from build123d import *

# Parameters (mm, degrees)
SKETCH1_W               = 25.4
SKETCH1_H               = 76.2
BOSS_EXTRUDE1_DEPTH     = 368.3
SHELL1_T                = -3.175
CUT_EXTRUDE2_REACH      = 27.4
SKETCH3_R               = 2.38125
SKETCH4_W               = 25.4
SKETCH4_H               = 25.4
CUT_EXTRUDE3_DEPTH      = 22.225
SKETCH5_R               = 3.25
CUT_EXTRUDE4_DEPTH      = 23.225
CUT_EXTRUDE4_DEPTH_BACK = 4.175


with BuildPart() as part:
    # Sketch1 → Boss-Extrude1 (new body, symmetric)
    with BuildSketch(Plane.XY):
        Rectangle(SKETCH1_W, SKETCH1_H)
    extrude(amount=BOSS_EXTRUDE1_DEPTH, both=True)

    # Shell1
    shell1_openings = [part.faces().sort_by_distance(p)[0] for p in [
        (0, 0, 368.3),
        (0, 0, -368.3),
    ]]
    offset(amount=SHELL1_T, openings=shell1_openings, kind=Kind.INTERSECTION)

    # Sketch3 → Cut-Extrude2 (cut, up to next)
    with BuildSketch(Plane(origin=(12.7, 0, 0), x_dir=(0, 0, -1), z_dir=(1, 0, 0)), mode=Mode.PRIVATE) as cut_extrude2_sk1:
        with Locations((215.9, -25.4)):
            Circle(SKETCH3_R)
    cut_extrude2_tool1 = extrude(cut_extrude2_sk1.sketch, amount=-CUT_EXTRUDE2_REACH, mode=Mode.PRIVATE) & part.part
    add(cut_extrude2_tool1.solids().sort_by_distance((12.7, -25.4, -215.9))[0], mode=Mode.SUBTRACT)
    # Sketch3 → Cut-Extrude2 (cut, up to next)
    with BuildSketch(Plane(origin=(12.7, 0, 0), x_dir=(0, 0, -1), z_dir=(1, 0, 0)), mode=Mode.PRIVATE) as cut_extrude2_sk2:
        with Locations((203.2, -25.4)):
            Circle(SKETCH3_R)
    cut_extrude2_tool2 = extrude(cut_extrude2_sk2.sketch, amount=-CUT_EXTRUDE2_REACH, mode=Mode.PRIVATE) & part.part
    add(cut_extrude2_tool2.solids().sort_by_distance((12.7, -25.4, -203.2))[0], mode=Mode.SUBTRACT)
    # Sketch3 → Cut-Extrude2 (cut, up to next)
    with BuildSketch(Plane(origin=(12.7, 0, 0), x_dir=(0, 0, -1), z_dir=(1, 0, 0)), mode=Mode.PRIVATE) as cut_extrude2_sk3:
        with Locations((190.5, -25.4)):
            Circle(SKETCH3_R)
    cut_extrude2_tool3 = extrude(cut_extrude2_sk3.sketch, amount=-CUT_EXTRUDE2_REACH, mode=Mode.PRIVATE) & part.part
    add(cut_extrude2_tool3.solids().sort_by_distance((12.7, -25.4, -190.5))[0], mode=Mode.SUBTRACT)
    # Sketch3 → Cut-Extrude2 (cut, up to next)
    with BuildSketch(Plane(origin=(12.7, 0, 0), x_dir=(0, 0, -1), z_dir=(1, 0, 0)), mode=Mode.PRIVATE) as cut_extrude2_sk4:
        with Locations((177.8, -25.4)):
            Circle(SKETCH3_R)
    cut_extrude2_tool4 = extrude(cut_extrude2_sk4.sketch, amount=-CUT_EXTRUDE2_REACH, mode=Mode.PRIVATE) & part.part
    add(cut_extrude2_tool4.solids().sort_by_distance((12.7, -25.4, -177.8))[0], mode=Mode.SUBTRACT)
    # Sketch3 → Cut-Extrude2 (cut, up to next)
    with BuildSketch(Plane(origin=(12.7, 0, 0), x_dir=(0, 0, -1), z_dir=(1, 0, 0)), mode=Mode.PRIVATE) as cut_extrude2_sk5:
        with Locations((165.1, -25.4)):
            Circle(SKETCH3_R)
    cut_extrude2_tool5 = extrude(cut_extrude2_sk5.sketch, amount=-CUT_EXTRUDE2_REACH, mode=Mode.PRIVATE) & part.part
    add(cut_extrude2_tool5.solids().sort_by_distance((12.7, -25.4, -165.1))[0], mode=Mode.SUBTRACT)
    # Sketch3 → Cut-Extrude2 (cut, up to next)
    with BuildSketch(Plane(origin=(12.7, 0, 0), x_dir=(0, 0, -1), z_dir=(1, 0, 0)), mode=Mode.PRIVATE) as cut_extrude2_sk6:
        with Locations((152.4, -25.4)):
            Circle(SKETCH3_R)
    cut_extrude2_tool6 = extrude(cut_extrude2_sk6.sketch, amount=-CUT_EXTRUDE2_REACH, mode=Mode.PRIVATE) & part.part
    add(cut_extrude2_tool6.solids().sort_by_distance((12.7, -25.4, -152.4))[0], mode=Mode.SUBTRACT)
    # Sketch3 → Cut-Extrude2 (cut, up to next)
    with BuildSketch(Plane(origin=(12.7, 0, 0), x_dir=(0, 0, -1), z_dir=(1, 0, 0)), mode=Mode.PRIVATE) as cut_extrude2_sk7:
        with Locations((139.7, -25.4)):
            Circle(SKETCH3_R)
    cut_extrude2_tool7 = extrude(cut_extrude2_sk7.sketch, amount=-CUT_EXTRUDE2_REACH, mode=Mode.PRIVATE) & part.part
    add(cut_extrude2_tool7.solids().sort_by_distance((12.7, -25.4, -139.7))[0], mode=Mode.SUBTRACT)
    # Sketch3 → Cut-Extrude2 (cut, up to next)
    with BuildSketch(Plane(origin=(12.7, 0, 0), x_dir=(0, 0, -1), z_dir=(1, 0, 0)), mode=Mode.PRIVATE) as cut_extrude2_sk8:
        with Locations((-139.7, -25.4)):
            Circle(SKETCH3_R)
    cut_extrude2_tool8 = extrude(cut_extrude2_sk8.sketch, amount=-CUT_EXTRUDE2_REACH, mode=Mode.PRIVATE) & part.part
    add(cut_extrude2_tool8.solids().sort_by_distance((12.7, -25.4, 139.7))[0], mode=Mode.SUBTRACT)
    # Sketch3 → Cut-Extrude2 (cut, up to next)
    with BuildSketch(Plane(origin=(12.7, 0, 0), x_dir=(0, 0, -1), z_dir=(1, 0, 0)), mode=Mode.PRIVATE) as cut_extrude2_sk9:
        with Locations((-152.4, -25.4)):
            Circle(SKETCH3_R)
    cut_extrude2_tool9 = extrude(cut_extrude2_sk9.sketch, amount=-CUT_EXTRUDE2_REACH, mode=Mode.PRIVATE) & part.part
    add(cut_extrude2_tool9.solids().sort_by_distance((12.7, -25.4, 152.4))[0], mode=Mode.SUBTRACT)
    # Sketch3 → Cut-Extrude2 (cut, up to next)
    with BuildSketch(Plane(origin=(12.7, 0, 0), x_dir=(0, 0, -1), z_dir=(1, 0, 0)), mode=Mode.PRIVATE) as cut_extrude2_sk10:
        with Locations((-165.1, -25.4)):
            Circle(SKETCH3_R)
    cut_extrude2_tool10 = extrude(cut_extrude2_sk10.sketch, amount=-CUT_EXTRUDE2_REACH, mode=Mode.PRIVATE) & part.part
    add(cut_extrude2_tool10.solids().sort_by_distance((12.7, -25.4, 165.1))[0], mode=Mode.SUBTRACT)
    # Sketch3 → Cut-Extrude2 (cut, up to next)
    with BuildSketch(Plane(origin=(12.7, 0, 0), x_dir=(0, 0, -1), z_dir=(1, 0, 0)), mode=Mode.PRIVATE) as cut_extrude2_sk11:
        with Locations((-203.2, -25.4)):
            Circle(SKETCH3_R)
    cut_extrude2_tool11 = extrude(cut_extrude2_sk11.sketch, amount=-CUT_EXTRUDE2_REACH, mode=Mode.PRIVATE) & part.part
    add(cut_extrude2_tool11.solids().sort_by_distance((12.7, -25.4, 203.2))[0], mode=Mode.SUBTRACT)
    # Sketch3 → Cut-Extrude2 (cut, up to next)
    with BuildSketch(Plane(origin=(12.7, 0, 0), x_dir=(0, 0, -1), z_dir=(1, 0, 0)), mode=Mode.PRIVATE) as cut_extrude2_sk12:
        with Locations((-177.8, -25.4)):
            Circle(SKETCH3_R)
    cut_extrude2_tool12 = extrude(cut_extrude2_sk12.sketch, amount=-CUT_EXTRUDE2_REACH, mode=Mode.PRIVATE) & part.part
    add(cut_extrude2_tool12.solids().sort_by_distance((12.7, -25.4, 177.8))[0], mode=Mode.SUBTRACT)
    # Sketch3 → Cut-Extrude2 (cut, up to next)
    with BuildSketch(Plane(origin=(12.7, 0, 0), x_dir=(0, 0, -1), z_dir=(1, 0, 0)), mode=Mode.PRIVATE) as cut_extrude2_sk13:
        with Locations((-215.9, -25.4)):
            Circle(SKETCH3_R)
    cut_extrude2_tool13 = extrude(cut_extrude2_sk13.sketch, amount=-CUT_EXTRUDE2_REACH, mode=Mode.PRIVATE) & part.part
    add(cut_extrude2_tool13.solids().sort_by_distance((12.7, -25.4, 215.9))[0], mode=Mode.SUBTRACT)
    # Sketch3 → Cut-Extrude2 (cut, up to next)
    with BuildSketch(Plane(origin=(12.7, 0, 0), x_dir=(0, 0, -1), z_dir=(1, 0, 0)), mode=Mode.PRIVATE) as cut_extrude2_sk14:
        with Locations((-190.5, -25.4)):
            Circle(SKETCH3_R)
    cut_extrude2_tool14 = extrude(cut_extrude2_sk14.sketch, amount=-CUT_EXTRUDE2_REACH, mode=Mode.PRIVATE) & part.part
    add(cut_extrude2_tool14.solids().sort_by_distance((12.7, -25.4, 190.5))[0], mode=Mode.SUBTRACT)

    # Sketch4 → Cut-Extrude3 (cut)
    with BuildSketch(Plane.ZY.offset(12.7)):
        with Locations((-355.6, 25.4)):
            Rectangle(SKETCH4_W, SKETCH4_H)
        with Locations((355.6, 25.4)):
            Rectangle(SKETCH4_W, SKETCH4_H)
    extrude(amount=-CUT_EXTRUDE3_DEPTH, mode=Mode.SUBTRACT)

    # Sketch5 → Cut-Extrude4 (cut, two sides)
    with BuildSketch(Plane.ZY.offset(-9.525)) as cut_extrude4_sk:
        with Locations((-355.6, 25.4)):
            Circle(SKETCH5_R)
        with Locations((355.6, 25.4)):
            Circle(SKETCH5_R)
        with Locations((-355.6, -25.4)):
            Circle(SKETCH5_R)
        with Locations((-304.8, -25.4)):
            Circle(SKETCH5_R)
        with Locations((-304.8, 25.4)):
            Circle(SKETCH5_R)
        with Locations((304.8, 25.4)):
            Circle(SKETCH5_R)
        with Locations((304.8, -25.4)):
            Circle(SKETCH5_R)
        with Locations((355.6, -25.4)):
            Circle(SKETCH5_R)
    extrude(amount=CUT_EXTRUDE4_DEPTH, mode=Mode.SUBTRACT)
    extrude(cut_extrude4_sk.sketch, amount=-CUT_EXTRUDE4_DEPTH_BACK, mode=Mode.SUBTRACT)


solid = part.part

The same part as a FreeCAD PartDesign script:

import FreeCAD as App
import Part
import Sketcher
Q = App.Units.Quantity


def faces_at(feature, points):
    """Names of the faces that lie closest to the given points."""
    faces = feature.Shape.Faces
    near = lambda p: min(range(len(faces)), key=lambda i: faces[i].distToShape(Part.Vertex(*p))[0])
    return sorted({f"Face{near(p) + 1}" for p in points})

doc = App.newDocument("Part")
body = doc.addObject("PartDesign::Body", "Body")

# Sketch on XY plane
sketch1 = body.newObject("Sketcher::SketchObject", "Sketch")
sketch1.AttachmentSupport = (doc.getObject("XY_Plane"), [""])
sketch1.MapMode = "FlatFace"
sketch1.addGeometry([
    Part.LineSegment(App.Vector(-12.7, 38.1, 0), App.Vector(-12.7, -38.1, 0)),
    Part.LineSegment(App.Vector(-12.7, -38.1, 0), App.Vector(12.7, -38.1, 0)),
    Part.LineSegment(App.Vector(12.7, -38.1, 0), App.Vector(12.7, 38.1, 0)),
    Part.LineSegment(App.Vector(12.7, 38.1, 0), App.Vector(-12.7, 38.1, 0)),
], False)
sketch1.addConstraint([
    Sketcher.Constraint("Coincident", 0, 2, 1, 1),
    Sketcher.Constraint("Coincident", 1, 2, 2, 1),
    Sketcher.Constraint("Coincident", 2, 2, 3, 1),
    Sketcher.Constraint("Coincident", 3, 2, 0, 1),
    Sketcher.Constraint("Vertical", 0),
    Sketcher.Constraint("Horizontal", 1),
    Sketcher.Constraint("Vertical", 2),
    Sketcher.Constraint("Horizontal", 3),
    Sketcher.Constraint("Symmetric", 0, 2, 2, 2, -1, 1),
    Sketcher.Constraint("DistanceX", 1, 1, 1, 2, Q("1 in")),
    Sketcher.Constraint("DistanceY", 0, 2, 0, 1, Q("3 in")),
])
pad1 = body.newObject("PartDesign::Pad", "Pad")
pad1.Profile = sketch1
pad1.Length = Q("29 in")
pad1.Midplane = True
doc.recompute()

thickness = body.newObject("PartDesign::Thickness", "Thickness")
thickness.Base = (pad1, faces_at(pad1, [(0, 0, 368.3), (0, 0, -368.3)]))
thickness.Value = Q("0.125 in")
thickness.Reversed = True
thickness.Join = "Intersection"

# Sketch on YZ plane
sketch2 = body.newObject("Sketcher::SketchObject", "Sketch001")
sketch2.AttachmentSupport = (doc.getObject("YZ_Plane"), [""])
sketch2.MapMode = "FlatFace"
sketch2.AttachmentOffset = App.Placement(App.Vector(0, 0, 0.5 * 25.4), App.Rotation())
sketch2.addGeometry(Part.Circle(App.Vector(-25.4, -215.9, 0), App.Vector(0, 0, 1), 2.38125), False)
sketch2.addConstraint([
    Sketcher.Constraint("Diameter", 0, Q("0.1875 in")),
    Sketcher.Constraint("DistanceX", 0, 3, -1, 1, Q("1 in")),
    Sketcher.Constraint("DistanceY", 0, 3, -1, 1, Q("8.5 in")),
])
pocket1 = body.newObject("PartDesign::Pocket", "Pocket")
pocket1.Profile = sketch2
pocket1.Type = "UpToFirst"

# Sketch on YZ plane
sketch3 = body.newObject("Sketcher::SketchObject", "Sketch002")
sketch3.AttachmentSupport = (doc.getObject("YZ_Plane"), [""])
sketch3.MapMode = "FlatFace"
sketch3.AttachmentOffset = App.Placement(App.Vector(0, 0, 0.5 * 25.4), App.Rotation())
sketch3.addGeometry(Part.Circle(App.Vector(-25.4, -203.2, 0), App.Vector(0, 0, 1), 2.38125), False)
sketch3.addConstraint([
    Sketcher.Constraint("Diameter", 0, Q("0.1875 in")),
    Sketcher.Constraint("DistanceX", 0, 3, -1, 1, Q("1 in")),
    Sketcher.Constraint("DistanceY", 0, 3, -1, 1, Q("8 in")),
])
pocket2 = body.newObject("PartDesign::Pocket", "Pocket001")
pocket2.Profile = sketch3
pocket2.Type = "UpToFirst"

# Sketch on YZ plane
sketch4 = body.newObject("Sketcher::SketchObject", "Sketch003")
sketch4.AttachmentSupport = (doc.getObject("YZ_Plane"), [""])
sketch4.MapMode = "FlatFace"
sketch4.AttachmentOffset = App.Placement(App.Vector(0, 0, 0.5 * 25.4), App.Rotation())
sketch4.addGeometry(Part.Circle(App.Vector(-25.4, -190.5, 0), App.Vector(0, 0, 1), 2.38125), False)
sketch4.addConstraint([
    Sketcher.Constraint("Diameter", 0, Q("0.1875 in")),
    Sketcher.Constraint("DistanceX", 0, 3, -1, 1, Q("1 in")),
    Sketcher.Constraint("DistanceY", 0, 3, -1, 1, Q("7.5 in")),
])
pocket3 = body.newObject("PartDesign::Pocket", "Pocket002")
pocket3.Profile = sketch4
pocket3.Type = "UpToFirst"

# Sketch on YZ plane
sketch5 = body.newObject("Sketcher::SketchObject", "Sketch004")
sketch5.AttachmentSupport = (doc.getObject("YZ_Plane"), [""])
sketch5.MapMode = "FlatFace"
sketch5.AttachmentOffset = App.Placement(App.Vector(0, 0, 0.5 * 25.4), App.Rotation())
sketch5.addGeometry(Part.Circle(App.Vector(-25.4, -177.8, 0), App.Vector(0, 0, 1), 2.38125), False)
sketch5.addConstraint([
    Sketcher.Constraint("Diameter", 0, Q("0.1875 in")),
    Sketcher.Constraint("DistanceX", 0, 3, -1, 1, Q("1 in")),
    Sketcher.Constraint("DistanceY", 0, 3, -1, 1, Q("7 in")),
])
pocket4 = body.newObject("PartDesign::Pocket", "Pocket003")
pocket4.Profile = sketch5
pocket4.Type = "UpToFirst"

# Sketch on YZ plane
sketch6 = body.newObject("Sketcher::SketchObject", "Sketch005")
sketch6.AttachmentSupport = (doc.getObject("YZ_Plane"), [""])
sketch6.MapMode = "FlatFace"
sketch6.AttachmentOffset = App.Placement(App.Vector(0, 0, 0.5 * 25.4), App.Rotation())
sketch6.addGeometry(Part.Circle(App.Vector(-25.4, -165.1, 0), App.Vector(0, 0, 1), 2.38125), False)
sketch6.addConstraint([
    Sketcher.Constraint("Diameter", 0, Q("0.1875 in")),
    Sketcher.Constraint("DistanceX", 0, 3, -1, 1, Q("1 in")),
    Sketcher.Constraint("DistanceY", 0, 3, -1, 1, Q("6.5 in")),
])
pocket5 = body.newObject("PartDesign::Pocket", "Pocket004")
pocket5.Profile = sketch6
pocket5.Type = "UpToFirst"

# Sketch on YZ plane
sketch7 = body.newObject("Sketcher::SketchObject", "Sketch006")
sketch7.AttachmentSupport = (doc.getObject("YZ_Plane"), [""])
sketch7.MapMode = "FlatFace"
sketch7.AttachmentOffset = App.Placement(App.Vector(0, 0, 0.5 * 25.4), App.Rotation())
sketch7.addGeometry(Part.Circle(App.Vector(-25.4, -152.4, 0), App.Vector(0, 0, 1), 2.38125), False)
sketch7.addConstraint([
    Sketcher.Constraint("Diameter", 0, Q("0.1875 in")),
    Sketcher.Constraint("DistanceX", 0, 3, -1, 1, Q("1 in")),
    Sketcher.Constraint("DistanceY", 0, 3, -1, 1, Q("6 in")),
])
pocket6 = body.newObject("PartDesign::Pocket", "Pocket005")
pocket6.Profile = sketch7
pocket6.Type = "UpToFirst"

# Sketch on YZ plane
sketch8 = body.newObject("Sketcher::SketchObject", "Sketch007")
sketch8.AttachmentSupport = (doc.getObject("YZ_Plane"), [""])
sketch8.MapMode = "FlatFace"
sketch8.AttachmentOffset = App.Placement(App.Vector(0, 0, 0.5 * 25.4), App.Rotation())
sketch8.addGeometry(Part.Circle(App.Vector(-25.4, -139.7, 0), App.Vector(0, 0, 1), 2.38125), False)
sketch8.addConstraint([
    Sketcher.Constraint("Diameter", 0, Q("0.1875 in")),
    Sketcher.Constraint("DistanceX", 0, 3, -1, 1, Q("1 in")),
    Sketcher.Constraint("DistanceY", 0, 3, -1, 1, Q("5.5 in")),
])
pocket7 = body.newObject("PartDesign::Pocket", "Pocket006")
pocket7.Profile = sketch8
pocket7.Type = "UpToFirst"

# Sketch on YZ plane
sketch9 = body.newObject("Sketcher::SketchObject", "Sketch008")
sketch9.AttachmentSupport = (doc.getObject("YZ_Plane"), [""])
sketch9.MapMode = "FlatFace"
sketch9.AttachmentOffset = App.Placement(App.Vector(0, 0, 0.5 * 25.4), App.Rotation())
sketch9.addGeometry(Part.Circle(App.Vector(-25.4, 139.7, 0), App.Vector(0, 0, 1), 2.38125), False)
sketch9.addConstraint([
    Sketcher.Constraint("Diameter", 0, Q("0.1875 in")),
    Sketcher.Constraint("DistanceX", 0, 3, -1, 1, Q("1 in")),
    Sketcher.Constraint("DistanceY", -1, 1, 0, 3, Q("5.5 in")),
])
pocket8 = body.newObject("PartDesign::Pocket", "Pocket007")
pocket8.Profile = sketch9
pocket8.Type = "UpToFirst"

# Sketch on YZ plane
sketch10 = body.newObject("Sketcher::SketchObject", "Sketch009")
sketch10.AttachmentSupport = (doc.getObject("YZ_Plane"), [""])
sketch10.MapMode = "FlatFace"
sketch10.AttachmentOffset = App.Placement(App.Vector(0, 0, 0.5 * 25.4), App.Rotation())
sketch10.addGeometry(Part.Circle(App.Vector(-25.4, 152.4, 0), App.Vector(0, 0, 1), 2.38125), False)
sketch10.addConstraint([
    Sketcher.Constraint("Diameter", 0, Q("0.1875 in")),
    Sketcher.Constraint("DistanceX", 0, 3, -1, 1, Q("1 in")),
    Sketcher.Constraint("DistanceY", -1, 1, 0, 3, Q("6 in")),
])
pocket9 = body.newObject("PartDesign::Pocket", "Pocket008")
pocket9.Profile = sketch10
pocket9.Type = "UpToFirst"

# Sketch on YZ plane
sketch11 = body.newObject("Sketcher::SketchObject", "Sketch010")
sketch11.AttachmentSupport = (doc.getObject("YZ_Plane"), [""])
sketch11.MapMode = "FlatFace"
sketch11.AttachmentOffset = App.Placement(App.Vector(0, 0, 0.5 * 25.4), App.Rotation())
sketch11.addGeometry(Part.Circle(App.Vector(-25.4, 165.1, 0), App.Vector(0, 0, 1), 2.38125), False)
sketch11.addConstraint([
    Sketcher.Constraint("Diameter", 0, Q("0.1875 in")),
    Sketcher.Constraint("DistanceX", 0, 3, -1, 1, Q("1 in")),
    Sketcher.Constraint("DistanceY", -1, 1, 0, 3, Q("6.5 in")),
])
pocket10 = body.newObject("PartDesign::Pocket", "Pocket009")
pocket10.Profile = sketch11
pocket10.Type = "UpToFirst"

# Sketch on YZ plane
sketch12 = body.newObject("Sketcher::SketchObject", "Sketch011")
sketch12.AttachmentSupport = (doc.getObject("YZ_Plane"), [""])
sketch12.MapMode = "FlatFace"
sketch12.AttachmentOffset = App.Placement(App.Vector(0, 0, 0.5 * 25.4), App.Rotation())
sketch12.addGeometry(Part.Circle(App.Vector(-25.4, 203.2, 0), App.Vector(0, 0, 1), 2.38125), False)
sketch12.addConstraint([
    Sketcher.Constraint("Diameter", 0, Q("0.1875 in")),
    Sketcher.Constraint("DistanceX", 0, 3, -1, 1, Q("1 in")),
    Sketcher.Constraint("DistanceY", -1, 1, 0, 3, Q("8 in")),
])
pocket11 = body.newObject("PartDesign::Pocket", "Pocket010")
pocket11.Profile = sketch12
pocket11.Type = "UpToFirst"

# Sketch on YZ plane
sketch13 = body.newObject("Sketcher::SketchObject", "Sketch012")
sketch13.AttachmentSupport = (doc.getObject("YZ_Plane"), [""])
sketch13.MapMode = "FlatFace"
sketch13.AttachmentOffset = App.Placement(App.Vector(0, 0, 0.5 * 25.4), App.Rotation())
sketch13.addGeometry(Part.Circle(App.Vector(-25.4, 177.8, 0), App.Vector(0, 0, 1), 2.38125), False)
sketch13.addConstraint([
    Sketcher.Constraint("Diameter", 0, Q("0.1875 in")),
    Sketcher.Constraint("DistanceX", 0, 3, -1, 1, Q("1 in")),
    Sketcher.Constraint("DistanceY", -1, 1, 0, 3, Q("7 in")),
])
pocket12 = body.newObject("PartDesign::Pocket", "Pocket011")
pocket12.Profile = sketch13
pocket12.Type = "UpToFirst"

# Sketch on YZ plane
sketch14 = body.newObject("Sketcher::SketchObject", "Sketch013")
sketch14.AttachmentSupport = (doc.getObject("YZ_Plane"), [""])
sketch14.MapMode = "FlatFace"
sketch14.AttachmentOffset = App.Placement(App.Vector(0, 0, 0.5 * 25.4), App.Rotation())
sketch14.addGeometry(Part.Circle(App.Vector(-25.4, 215.9, 0), App.Vector(0, 0, 1), 2.38125), False)
sketch14.addConstraint([
    Sketcher.Constraint("Diameter", 0, Q("0.1875 in")),
    Sketcher.Constraint("DistanceX", 0, 3, -1, 1, Q("1 in")),
    Sketcher.Constraint("DistanceY", -1, 1, 0, 3, Q("8.5 in")),
])
pocket13 = body.newObject("PartDesign::Pocket", "Pocket012")
pocket13.Profile = sketch14
pocket13.Type = "UpToFirst"

# Sketch on YZ plane
sketch15 = body.newObject("Sketcher::SketchObject", "Sketch014")
sketch15.AttachmentSupport = (doc.getObject("YZ_Plane"), [""])
sketch15.MapMode = "FlatFace"
sketch15.AttachmentOffset = App.Placement(App.Vector(0, 0, 0.5 * 25.4), App.Rotation())
sketch15.addGeometry(Part.Circle(App.Vector(-25.4, 190.5, 0), App.Vector(0, 0, 1), 2.38125), False)
sketch15.addConstraint([
    Sketcher.Constraint("Diameter", 0, Q("0.1875 in")),
    Sketcher.Constraint("DistanceX", 0, 3, -1, 1, Q("1 in")),
    Sketcher.Constraint("DistanceY", -1, 1, 0, 3, Q("7.5 in")),
])
pocket14 = body.newObject("PartDesign::Pocket", "Pocket013")
pocket14.Profile = sketch15
pocket14.Type = "UpToFirst"

# Sketch on YZ plane
sketch16 = body.newObject("Sketcher::SketchObject", "Sketch015")
sketch16.AttachmentSupport = (doc.getObject("YZ_Plane"), [""])
sketch16.MapMode = "FlatFace"
sketch16.AttachmentOffset = App.Placement(App.Vector(0, 0, -0.5 * 25.4), App.Rotation())
sketch16.addGeometry([
    Part.LineSegment(App.Vector(38.1, -368.3, 0), App.Vector(12.7, -368.3, 0)),  # 0
    Part.LineSegment(App.Vector(12.7, -368.3, 0), App.Vector(12.7, -342.9, 0)),  # 1
    Part.LineSegment(App.Vector(12.7, -342.9, 0), App.Vector(38.1, -342.9, 0)),  # 2
    Part.LineSegment(App.Vector(38.1, -342.9, 0), App.Vector(38.1, -368.3, 0)),  # 3
    Part.LineSegment(App.Vector(38.1, 342.9, 0), App.Vector(12.7, 342.9, 0)),  # 4
    Part.LineSegment(App.Vector(12.7, 342.9, 0), App.Vector(12.7, 368.3, 0)),  # 5
    Part.LineSegment(App.Vector(12.7, 368.3, 0), App.Vector(38.1, 368.3, 0)),  # 6
    Part.LineSegment(App.Vector(38.1, 368.3, 0), App.Vector(38.1, 342.9, 0)),  # 7
], False)
sketch16.addConstraint([
    Sketcher.Constraint("Coincident", 0, 2, 1, 1),
    Sketcher.Constraint("Coincident", 1, 2, 2, 1),
    Sketcher.Constraint("Coincident", 2, 2, 3, 1),
    Sketcher.Constraint("Coincident", 3, 2, 0, 1),
    Sketcher.Constraint("Coincident", 4, 2, 5, 1),
    Sketcher.Constraint("Coincident", 5, 2, 6, 1),
    Sketcher.Constraint("Coincident", 6, 2, 7, 1),
    Sketcher.Constraint("Coincident", 7, 2, 4, 1),
    Sketcher.Constraint("Horizontal", 0),
    Sketcher.Constraint("Vertical", 1),
    Sketcher.Constraint("Horizontal", 2),
    Sketcher.Constraint("Vertical", 3),
    Sketcher.Constraint("Horizontal", 4),
    Sketcher.Constraint("Vertical", 5),
    Sketcher.Constraint("Horizontal", 6),
    Sketcher.Constraint("Vertical", 7),
    Sketcher.Constraint("Symmetric", 1, 2, 4, 2, -1),
    Sketcher.Constraint("Symmetric", 3, 2, 6, 2, -1),
    Sketcher.Constraint("Equal", 6, 1),
    Sketcher.Constraint("DistanceX", 0, 2, 0, 1, Q("1 in")),
    Sketcher.Constraint("DistanceY", 1, 2, 4, 2, Q("27 in")),
    Sketcher.Constraint("DistanceX", -1, 1, 0, 2, Q("0.5 in")),
])
pocket15 = body.newObject("PartDesign::Pocket", "Pocket014")
pocket15.Profile = sketch16
pocket15.Length = Q("0.875 in")
pocket15.Reversed = True

# Sketch on YZ plane
sketch17 = body.newObject("Sketcher::SketchObject", "Sketch016")
sketch17.AttachmentSupport = (doc.getObject("YZ_Plane"), [""])
sketch17.MapMode = "FlatFace"
sketch17.AttachmentOffset = App.Placement(App.Vector(0, 0, 0.375 * 25.4), App.Rotation())
sketch17.addGeometry([
    Part.Circle(App.Vector(25.4, -355.6, 0), App.Vector(0, 0, 1), 3.25),  # 0
    Part.Circle(App.Vector(25.4, 355.6, 0), App.Vector(0, 0, 1), 3.25),  # 1
    Part.Circle(App.Vector(-25.4, -355.6, 0), App.Vector(0, 0, 1), 3.25),  # 2
    Part.Circle(App.Vector(-25.4, -304.8, 0), App.Vector(0, 0, 1), 3.25),  # 3
    Part.Circle(App.Vector(25.4, -304.8, 0), App.Vector(0, 0, 1), 3.25),  # 4
    Part.Circle(App.Vector(25.4, 304.8, 0), App.Vector(0, 0, 1), 3.25),  # 5
    Part.Circle(App.Vector(-25.4, 304.8, 0), App.Vector(0, 0, 1), 3.25),  # 6
    Part.Circle(App.Vector(-25.4, 355.6, 0), App.Vector(0, 0, 1), 3.25),  # 7
], False)
sketch17.addConstraint([
    Sketcher.Constraint("Equal", 0, 1),
    Sketcher.Constraint("Equal", 1, 2),
    Sketcher.Constraint("Equal", 2, 3),
    Sketcher.Constraint("Equal", 3, 4),
    Sketcher.Constraint("Equal", 4, 5),
    Sketcher.Constraint("Equal", 5, 6),
    Sketcher.Constraint("Equal", 6, 7),
    Sketcher.Constraint("Symmetric", 1, 3, 2, 3, -1, 1),
    Sketcher.Constraint("Symmetric", 3, 3, 5, 3, -1, 1),
    Sketcher.Constraint("Symmetric", 4, 3, 6, 3, -1, 1),
    Sketcher.Constraint("Symmetric", 0, 3, 7, 3, -1, 1),
    Sketcher.Constraint("Symmetric", 0, 3, 2, 3, -2),
    Sketcher.Constraint("Symmetric", 3, 3, 4, 3, -2),
    Sketcher.Constraint("Vertical", 2, 3, 3, 3),
    Sketcher.Constraint("DistanceX", -1, 1, 0, 3, Q("1 in")),
    Sketcher.Constraint("DistanceY", 0, 3, -1, 1, Q("14 in")),
    Sketcher.Constraint("DistanceY", 3, 3, -1, 1, Q("12 in")),
    Sketcher.Constraint("Diameter", 0, Q("6.5 mm")),
])
pocket16 = body.newObject("PartDesign::Pocket", "Pocket015")
pocket16.Profile = sketch17
pocket16.Type = "ThroughAll"
pocket16.Midplane = True

doc.recompute()
